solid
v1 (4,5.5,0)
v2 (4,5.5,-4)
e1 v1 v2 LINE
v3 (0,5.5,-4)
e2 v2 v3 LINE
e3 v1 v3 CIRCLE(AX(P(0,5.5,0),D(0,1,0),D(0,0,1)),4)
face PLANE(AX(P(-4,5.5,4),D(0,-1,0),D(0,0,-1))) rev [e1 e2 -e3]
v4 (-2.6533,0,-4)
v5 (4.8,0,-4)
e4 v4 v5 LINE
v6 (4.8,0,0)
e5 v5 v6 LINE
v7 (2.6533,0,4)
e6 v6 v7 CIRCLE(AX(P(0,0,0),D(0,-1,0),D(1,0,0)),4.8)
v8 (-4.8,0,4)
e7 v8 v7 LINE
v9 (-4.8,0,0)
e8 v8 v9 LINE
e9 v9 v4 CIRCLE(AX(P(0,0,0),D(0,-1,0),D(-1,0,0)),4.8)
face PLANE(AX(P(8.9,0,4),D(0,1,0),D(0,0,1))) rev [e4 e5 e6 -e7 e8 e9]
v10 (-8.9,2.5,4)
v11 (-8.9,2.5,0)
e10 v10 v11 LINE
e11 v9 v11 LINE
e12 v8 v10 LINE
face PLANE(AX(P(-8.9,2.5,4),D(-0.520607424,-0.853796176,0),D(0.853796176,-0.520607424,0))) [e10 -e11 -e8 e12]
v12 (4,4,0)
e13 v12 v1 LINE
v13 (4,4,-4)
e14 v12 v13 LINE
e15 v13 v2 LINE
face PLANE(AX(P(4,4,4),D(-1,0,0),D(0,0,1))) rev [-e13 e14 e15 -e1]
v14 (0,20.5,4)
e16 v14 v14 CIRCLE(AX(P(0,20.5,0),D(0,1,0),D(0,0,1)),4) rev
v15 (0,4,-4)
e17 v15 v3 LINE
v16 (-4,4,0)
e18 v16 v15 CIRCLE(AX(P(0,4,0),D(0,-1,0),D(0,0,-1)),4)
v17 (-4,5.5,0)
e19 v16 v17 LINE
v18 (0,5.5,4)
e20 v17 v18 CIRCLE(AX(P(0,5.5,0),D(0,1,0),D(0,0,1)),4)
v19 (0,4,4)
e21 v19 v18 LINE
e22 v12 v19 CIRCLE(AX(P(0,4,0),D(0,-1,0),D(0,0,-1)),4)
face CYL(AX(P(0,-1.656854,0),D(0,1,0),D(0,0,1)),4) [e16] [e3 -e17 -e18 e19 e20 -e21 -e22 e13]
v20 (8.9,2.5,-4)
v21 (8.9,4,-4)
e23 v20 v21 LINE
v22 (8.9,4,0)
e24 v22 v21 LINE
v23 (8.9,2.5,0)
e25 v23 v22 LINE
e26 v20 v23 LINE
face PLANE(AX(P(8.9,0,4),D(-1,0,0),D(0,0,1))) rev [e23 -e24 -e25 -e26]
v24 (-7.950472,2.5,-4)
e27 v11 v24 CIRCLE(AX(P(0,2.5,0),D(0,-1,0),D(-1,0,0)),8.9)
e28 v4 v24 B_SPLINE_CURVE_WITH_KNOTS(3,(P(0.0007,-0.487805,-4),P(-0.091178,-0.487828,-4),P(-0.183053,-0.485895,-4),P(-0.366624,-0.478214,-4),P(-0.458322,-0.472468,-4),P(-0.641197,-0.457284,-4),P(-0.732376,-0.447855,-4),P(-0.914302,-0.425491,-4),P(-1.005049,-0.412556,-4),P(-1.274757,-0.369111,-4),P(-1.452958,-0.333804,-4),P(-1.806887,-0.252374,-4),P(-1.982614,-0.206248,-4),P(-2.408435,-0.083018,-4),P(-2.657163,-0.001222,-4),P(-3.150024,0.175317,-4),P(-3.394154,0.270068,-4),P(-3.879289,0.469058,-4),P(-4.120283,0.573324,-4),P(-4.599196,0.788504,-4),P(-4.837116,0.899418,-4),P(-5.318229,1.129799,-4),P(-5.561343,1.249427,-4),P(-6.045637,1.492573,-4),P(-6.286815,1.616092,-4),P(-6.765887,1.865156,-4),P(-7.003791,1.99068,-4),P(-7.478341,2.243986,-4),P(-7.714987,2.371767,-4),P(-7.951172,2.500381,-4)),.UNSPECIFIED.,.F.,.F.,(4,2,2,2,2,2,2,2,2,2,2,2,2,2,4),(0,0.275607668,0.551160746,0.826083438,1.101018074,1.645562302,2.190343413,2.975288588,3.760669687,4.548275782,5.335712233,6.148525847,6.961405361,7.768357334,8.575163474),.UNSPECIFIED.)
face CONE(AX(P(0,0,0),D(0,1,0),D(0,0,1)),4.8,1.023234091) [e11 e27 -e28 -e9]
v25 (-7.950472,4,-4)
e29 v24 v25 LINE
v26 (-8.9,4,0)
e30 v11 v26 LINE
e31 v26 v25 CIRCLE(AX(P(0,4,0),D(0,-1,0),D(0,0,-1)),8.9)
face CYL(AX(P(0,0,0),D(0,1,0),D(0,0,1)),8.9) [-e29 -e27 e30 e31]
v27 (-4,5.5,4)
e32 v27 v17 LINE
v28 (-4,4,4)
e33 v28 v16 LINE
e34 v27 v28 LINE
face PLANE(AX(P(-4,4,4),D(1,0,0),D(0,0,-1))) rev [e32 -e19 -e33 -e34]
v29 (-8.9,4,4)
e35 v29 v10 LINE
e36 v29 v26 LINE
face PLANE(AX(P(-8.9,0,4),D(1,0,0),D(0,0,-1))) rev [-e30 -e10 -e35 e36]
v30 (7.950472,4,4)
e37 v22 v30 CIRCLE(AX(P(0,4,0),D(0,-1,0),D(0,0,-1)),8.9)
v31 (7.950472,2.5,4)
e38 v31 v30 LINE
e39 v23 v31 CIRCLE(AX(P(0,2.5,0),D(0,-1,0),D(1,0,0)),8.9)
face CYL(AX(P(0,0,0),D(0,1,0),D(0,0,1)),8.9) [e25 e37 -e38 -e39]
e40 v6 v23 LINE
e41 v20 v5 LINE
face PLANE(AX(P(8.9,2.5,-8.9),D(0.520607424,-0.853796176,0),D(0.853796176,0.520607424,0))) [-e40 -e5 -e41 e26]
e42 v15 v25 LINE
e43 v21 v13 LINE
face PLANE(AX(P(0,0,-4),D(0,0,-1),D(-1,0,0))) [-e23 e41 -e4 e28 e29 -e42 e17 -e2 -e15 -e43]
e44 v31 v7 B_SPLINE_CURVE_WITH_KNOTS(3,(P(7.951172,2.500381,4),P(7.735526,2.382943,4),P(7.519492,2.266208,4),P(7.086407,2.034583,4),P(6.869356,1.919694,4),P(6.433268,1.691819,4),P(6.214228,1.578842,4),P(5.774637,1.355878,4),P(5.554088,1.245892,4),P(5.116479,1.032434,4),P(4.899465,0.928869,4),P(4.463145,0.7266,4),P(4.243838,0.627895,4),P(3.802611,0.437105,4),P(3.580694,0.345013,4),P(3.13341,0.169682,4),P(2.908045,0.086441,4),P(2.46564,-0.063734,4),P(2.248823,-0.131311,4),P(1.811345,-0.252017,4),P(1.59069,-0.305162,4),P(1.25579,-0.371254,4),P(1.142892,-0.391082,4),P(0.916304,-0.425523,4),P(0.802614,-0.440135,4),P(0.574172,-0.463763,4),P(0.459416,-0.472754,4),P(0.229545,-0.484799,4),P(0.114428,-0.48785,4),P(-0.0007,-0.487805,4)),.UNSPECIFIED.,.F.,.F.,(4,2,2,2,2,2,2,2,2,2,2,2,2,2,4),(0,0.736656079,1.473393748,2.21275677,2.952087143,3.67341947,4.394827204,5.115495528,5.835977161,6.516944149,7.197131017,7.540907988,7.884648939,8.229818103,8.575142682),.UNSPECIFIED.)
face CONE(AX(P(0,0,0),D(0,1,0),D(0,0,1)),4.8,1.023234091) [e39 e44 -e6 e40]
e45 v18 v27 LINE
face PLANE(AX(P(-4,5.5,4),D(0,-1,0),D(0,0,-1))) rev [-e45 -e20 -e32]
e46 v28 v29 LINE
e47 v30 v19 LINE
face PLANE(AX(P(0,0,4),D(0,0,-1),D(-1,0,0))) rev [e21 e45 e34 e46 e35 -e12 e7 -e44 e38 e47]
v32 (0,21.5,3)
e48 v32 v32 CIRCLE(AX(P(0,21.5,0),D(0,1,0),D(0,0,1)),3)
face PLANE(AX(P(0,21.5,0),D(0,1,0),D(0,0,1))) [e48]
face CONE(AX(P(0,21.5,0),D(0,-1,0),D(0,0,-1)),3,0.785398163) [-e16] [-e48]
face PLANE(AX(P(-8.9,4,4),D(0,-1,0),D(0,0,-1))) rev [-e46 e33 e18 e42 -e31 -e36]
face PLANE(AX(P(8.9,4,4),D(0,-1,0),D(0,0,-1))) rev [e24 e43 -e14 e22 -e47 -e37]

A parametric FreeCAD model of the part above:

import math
import FreeCAD as App
import Part
import Sketcher
from FreeCAD import Vector
Q = App.Units.Quantity


def edges_at(feature, points):
    """Names of the edges that pass closest to the given points."""
    edges = feature.Shape.Edges
    near = lambda p: min(range(len(edges)), key=lambda i: edges[i].distToShape(Part.Vertex(*p))[0])
    return sorted({f"Edge{near(p) + 1}" for p in points})


def add_polygon(sketch, points):
    """Adds a closed chain of lines whose ends are joined by coincident constraints."""
    first, n = sketch.GeometryCount, len(points)
    for a, b in zip(points, points[1:] + points[:1]):
        sketch.addGeometry(Part.LineSegment(App.Vector(*a, 0), App.Vector(*b, 0)), False)
    for i in range(n):
        sketch.addConstraint(Sketcher.Constraint("Coincident", first + i, 2, first + (i + 1) % n, 1))

doc = App.newDocument("Part")
body = doc.addObject("PartDesign::Body", "Body")

# Sketch on XY plane
sketch1 = body.newObject("Sketcher::SketchObject", "Sketch")
sketch1.AttachmentSupport = (doc.getObject("XY_Plane"), [""])
sketch1.MapMode = "FlatFace"
add_polygon(sketch1, [(-8.9, 0), (8.9, 0), (8.9, 4), (4, 4), (4, 5.5), (-4, 5.5), (-4, 4), (-8.9, 4)])  # lines 0-7
sketch1.addConstraint([
    Sketcher.Constraint("Horizontal", 0),
    Sketcher.Constraint("Vertical", 1),
    Sketcher.Constraint("Horizontal", 2),
    Sketcher.Constraint("Vertical", 3),
    Sketcher.Constraint("Horizontal", 4),
    Sketcher.Constraint("Vertical", 5),
    Sketcher.Constraint("Horizontal", 6),
    Sketcher.Constraint("Vertical", 7),
    Sketcher.Constraint("Symmetric", 0, 2, 7, 2, -1, 1),
    Sketcher.Constraint("Symmetric", 2, 2, 5, 2, -2),
    Sketcher.Constraint("DistanceX", 4, 2, 4, 1, Q("8 mm")),
    Sketcher.Constraint("DistanceY", 1, 1, 1, 2, Q("4 mm")),
    Sketcher.Constraint("DistanceX", 0, 1, 0, 2, Q("17.8 mm")),
    Sketcher.Constraint("DistanceY", 3, 1, 3, 2, Q("1.5 mm")),
])
pad1 = body.newObject("PartDesign::Pad", "Pad")
pad1.Profile = sketch1
pad1.Length = 8
pad1.Midplane = True

# Sketch on XZ plane
sketch2 = body.newObject("Sketcher::SketchObject", "Sketch001")
sketch2.AttachmentSupport = (doc.getObject("XZ_Plane"), [""])
sketch2.MapMode = "FlatFace"
sketch2.AttachmentOffset = App.Placement(Vector(0, 0, -5.5), App.Rotation())
sketch2.addGeometry([
    Part.LineSegment(Vector(-4, -4, 0), Vector(-4, 0, 0)),  # 0
    Part.ArcOfCircle(Part.Circle(Vector(0, 0, 0), Vector(0, 0, 1), 4), math.radians(180), math.radians(270)),  # 1
    Part.LineSegment(Vector(0, -4, 0), Vector(-4, -4, 0)),  # 2
    Part.LineSegment(Vector(0, 4, 0), Vector(4, 4, 0)),  # 3
    Part.LineSegment(Vector(4, 4, 0), Vector(4, 0, 0)),  # 4
    Part.ArcOfCircle(Part.Circle(Vector(0, 0, 0), Vector(0, 0, 1), 4), math.radians(0), math.radians(90)),  # 5
], False)
sketch2.addConstraint([
    Sketcher.Constraint("Tangent", 0, 2, 1, 1),
    Sketcher.Constraint("Tangent", 1, 2, 2, 1),
    Sketcher.Constraint("Coincident", 2, 2, 0, 1),
    Sketcher.Constraint("Coincident", 3, 2, 4, 1),
    Sketcher.Constraint("Tangent", 4, 2, 5, 1),
    Sketcher.Constraint("Tangent", 5, 2, 3, 1),
    Sketcher.Constraint("Vertical", 0),
    Sketcher.Constraint("Horizontal", 2),
    Sketcher.Constraint("Horizontal", 3),
    Sketcher.Constraint("Vertical", 4),
    Sketcher.Constraint("Coincident", 1, 3, -1, 1),
    Sketcher.Constraint("Coincident", 5, 3, -1, 1),
    Sketcher.Constraint("Equal", 1, 5),
    Sketcher.Constraint("Radius", 1, Q("4 mm")),
])
pocket1 = body.newObject("PartDesign::Pocket", "Pocket")
pocket1.Profile = sketch2
pocket1.Length = 1.5
pocket1.Reversed = True

# Sketch on XZ plane
sketch3 = body.newObject("Sketcher::SketchObject", "Sketch002")
sketch3.AttachmentSupport = (doc.getObject("XZ_Plane"), [""])
sketch3.MapMode = "FlatFace"
sketch3.AttachmentOffset = App.Placement(Vector(0, 0, -5.5), App.Rotation())
sketch3.addGeometry(Part.Circle(Vector(0, 0, 0), Vector(0, 0, 1), 4), False)
sketch3.addConstraint([
    Sketcher.Constraint("Coincident", 0, 3, -1, 1),
    Sketcher.Constraint("Diameter", 0, Q("8 mm")),
])
pad2 = body.newObject("PartDesign::Pad", "Pad001")
pad2.Profile = sketch3
pad2.Length = 16
pad2.Reversed = True

# Sketch on XZ plane
sketch4 = body.newObject("Sketcher::SketchObject", "Sketch003")
sketch4.AttachmentSupport = (doc.getObject("XZ_Plane"), [""])
sketch4.MapMode = "FlatFace"
sketch4.AttachmentOffset = App.Placement(Vector(0, 0, -4), App.Rotation())
sketch4.addGeometry([
    Part.LineSegment(Vector(-8, -4, 0), Vector(-8.9, -4, 0)),  # 0
    Part.LineSegment(Vector(-8.9, -4, 0), Vector(-8.9, 0, 0)),  # 1
    Part.ArcOfCircle(Part.Circle(Vector(0, 0, 0), Vector(0, 0, 1), 8.9), math.radians(180), math.radians(207)),  # 2
    Part.LineSegment(Vector(8, 4, 0), Vector(8.9, 4, 0)),  # 3
    Part.LineSegment(Vector(8.9, 4, 0), Vector(8.9, 0, 0)),  # 4
    Part.ArcOfCircle(Part.Circle(Vector(0, 0, 0), Vector(0, 0, 1), 8.9), math.radians(0), math.radians(27)),  # 5
], False)
sketch4.addConstraint([
    Sketcher.Constraint("Coincident", 0, 2, 1, 1),
    Sketcher.Constraint("Tangent", 1, 2, 2, 1),
    Sketcher.Constraint("Coincident", 2, 2, 0, 1),
    Sketcher.Constraint("Coincident", 3, 2, 4, 1),
    Sketcher.Constraint("Tangent", 4, 2, 5, 1),
    Sketcher.Constraint("Coincident", 5, 2, 3, 1),
    Sketcher.Constraint("Horizontal", 0),
    Sketcher.Constraint("Vertical", 1),
    Sketcher.Constraint("Horizontal", 3),
    Sketcher.Constraint("Vertical", 4),
    Sketcher.Constraint("Coincident", 2, 3, -1, 1),
    Sketcher.Constraint("Coincident", 5, 3, -1, 1),
    Sketcher.Constraint("Equal", 2, 5),
    Sketcher.Constraint("Equal", 0, 3),
    Sketcher.Constraint("Radius", 2, Q("8.9 mm")),
    Sketcher.Constraint("DistanceY", 1, 1, 1, 2, Q("4 mm")),
])
pocket2 = body.newObject("PartDesign::Pocket", "Pocket001")
pocket2.Profile = sketch4
pocket2.Type = "ThroughAll"
pocket2.Reversed = True

# Sketch on XY plane
sketch5 = body.newObject("Sketcher::SketchObject", "Sketch004")
sketch5.AttachmentSupport = (doc.getObject("XY_Plane"), [""])
sketch5.MapMode = "FlatFace"
sketch5.AttachmentOffset = App.Placement(Vector(0, 0, 4), App.Rotation())
add_polygon(sketch5, [(-4.8, 0), (-8.9, 2.5), (-8.9, 0)])  # lines 0-2
sketch5.addConstraint([
    Sketcher.Constraint("Vertical", 1),
    Sketcher.Constraint("Horizontal", 2),
    Sketcher.Constraint("PointOnObject", 1, 2, -1),
    Sketcher.Constraint("DistanceX", 2, 1, 2, 2, Q("4.1 mm")),
    Sketcher.Constraint("DistanceY", 1, 2, 1, 1, Q("2.5 mm")),
    Sketcher.Constraint("DistanceX", 0, 2, -1, 1, Q("8.9 mm")),
])

# Sketch on XZ plane
sketch6 = body.newObject("Sketcher::SketchObject", "Sketch005")
sketch6.AttachmentSupport = (doc.getObject("XZ_Plane"), [""])
sketch6.MapMode = "FlatFace"
sketch6.addGeometry([
    Part.LineSegment(Vector(0, -9, 0), Vector(9, -9, 0)),  # 0
    Part.LineSegment(Vector(9, -9, 0), Vector(9, 0, 0)),  # 1
    Part.ArcOfCircle(Part.Circle(Vector(0, 0, 0), Vector(0, 0, 1), 9), math.radians(0), math.radians(90)),  # 2
    Part.LineSegment(Vector(0, 9, 0), Vector(-9, 9, 0)),  # 3
    Part.LineSegment(Vector(-9, 9, 0), Vector(-9, 0, 0)),  # 4
    Part.ArcOfCircle(Part.Circle(Vector(0, 0, 0), Vector(0, 0, 1), 9), math.radians(180), math.radians(270)),  # 5
], False)
sketch6.addConstraint([
    Sketcher.Constraint("Coincident", 0, 2, 1, 1),
    Sketcher.Constraint("Tangent", 1, 2, 2, 1),
    Sketcher.Constraint("Tangent", 2, 2, 3, 1),
    Sketcher.Constraint("Coincident", 3, 2, 4, 1),
    Sketcher.Constraint("Tangent", 4, 2, 5, 1),
    Sketcher.Constraint("Tangent", 5, 2, 0, 1),
    Sketcher.Constraint("Horizontal", 0),
    Sketcher.Constraint("Vertical", 1),
    Sketcher.Constraint("Horizontal", 3),
    Sketcher.Constraint("Vertical", 4),
    Sketcher.Constraint("Coincident", 2, 3, -1, 1),
    Sketcher.Constraint("Coincident", 5, 3, -1, 1),
    Sketcher.Constraint("Equal", 2, 5),
    Sketcher.Constraint("Radius", 2, Q("8.9 mm")),
])
doc.recompute()

subtractivepipe = body.newObject("PartDesign::SubtractivePipe", "SubtractivePipe")
subtractivepipe.Profile = sketch5
subtractivepipe.Spine = (sketch6, ["Edge1", "Edge2", "Edge3", "Edge4", "Edge5", "Edge6"])
subtractivepipe.Transition = "Right corner"
doc.recompute()

chamfer = body.newObject("PartDesign::Chamfer", "Chamfer")
chamfer.Base = (subtractivepipe, edges_at(subtractivepipe, [(0, 21.5, -4)]))
chamfer.Size = 1

doc.recompute()
